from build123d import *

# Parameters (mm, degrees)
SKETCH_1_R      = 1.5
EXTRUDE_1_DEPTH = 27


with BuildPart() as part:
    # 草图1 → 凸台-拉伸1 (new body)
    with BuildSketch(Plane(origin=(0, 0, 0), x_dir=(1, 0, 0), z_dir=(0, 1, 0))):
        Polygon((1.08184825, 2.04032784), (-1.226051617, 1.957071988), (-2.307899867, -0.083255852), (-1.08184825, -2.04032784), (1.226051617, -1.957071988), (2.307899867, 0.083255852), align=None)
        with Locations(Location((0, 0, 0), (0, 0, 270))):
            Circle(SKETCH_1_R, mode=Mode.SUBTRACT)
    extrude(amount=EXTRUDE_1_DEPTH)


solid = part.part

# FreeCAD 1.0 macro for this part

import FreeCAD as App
import Part
import Sketcher
from FreeCAD import Vector
Q = App.Units.Quantity

doc = App.newDocument("Part")
body = doc.addObject("PartDesign::Body", "Body")

# Sketch on XZ plane
sketch1 = doc.addObject("Sketcher::SketchObject", "Sketch")
body.addObject(sketch1)
sketch1.AttachmentSupport = (doc.XZ_Plane, [""])
sketch1.MapMode = "FlatFace"
sketch1.addGeometry(Part.LineSegment(Vector(1.081848, -2.040328, 0), Vector(-1.226052, -1.957072, 0)), False)
sketch1.addGeometry(Part.LineSegment(Vector(-1.226052, -1.957072, 0), Vector(-2.3079, 0.083256, 0)), False)
sketch1.addGeometry(Part.LineSegment(Vector(-2.3079, 0.083256, 0), Vector(-1.081848, 2.040328, 0)), False)
sketch1.addGeometry(Part.LineSegment(Vector(-1.081848, 2.040328, 0), Vector(1.226052, 1.957072, 0)), False)
sketch1.addGeometry(Part.LineSegment(Vector(1.226052, 1.957072, 0), Vector(2.3079, -0.083256, 0)), False)
sketch1.addGeometry(Part.LineSegment(Vector(2.3079, -0.083256, 0), Vector(1.081848, -2.040328, 0)), False)
sketch1.addGeometry(Part.Circle(Vector(0, 0, 0), Vector(0, 0, 1), 1.5), False)
sketch1.addConstraint(Sketcher.Constraint("Coincident", 0, 2, 1, 1))
sketch1.addConstraint(Sketcher.Constraint("Coincident", 1, 2, 2, 1))
sketch1.addConstraint(Sketcher.Constraint("Coincident", 2, 2, 3, 1))
sketch1.addConstraint(Sketcher.Constraint("Coincident", 3, 2, 4, 1))
sketch1.addConstraint(Sketcher.Constraint("Coincident", 4, 2, 5, 1))
sketch1.addConstraint(Sketcher.Constraint("Coincident", 5, 2, 0, 1))
sketch1.addConstraint(Sketcher.Constraint("Coincident", 6, 3, -1, 1))
sketch1.addConstraint(Sketcher.Constraint("Symmetric", 0, 2, 3, 2, -1, 1))
sketch1.addConstraint(Sketcher.Constraint("Symmetric", 1, 2, 4, 2, -1, 1))
sketch1.addConstraint(Sketcher.Constraint("Symmetric", 2, 2, 5, 2, -1, 1))
sketch1.addConstraint(Sketcher.Constraint("Equal", 0, 1))
sketch1.addConstraint(Sketcher.Constraint("Equal", 1, 2))
sketch1.addConstraint(Sketcher.Constraint("Diameter", 6, Q("3 mm")))
sketch1.addConstraint(Sketcher.Constraint("Distance", 0, Q("2.309401 mm")))
sketch1.addConstraint(Sketcher.Constraint("DistanceX", 1, 2, -1, 1, Q("2.3079 mm")))
sketch1.addConstraint(Sketcher.Constraint("DistanceY", 0, 2, 2, 2, Q("3.9974 mm")))
sketch1.addConstraint(Sketcher.Constraint("DistanceX", 2, 2, 3, 2, Q("2.3079 mm")))
pad1 = doc.addObject("PartDesign::Pad", "Pad")
body.addObject(pad1)
pad1.Profile = sketch1
pad1.Length = 27
pad1.Reversed = True

doc.recompute()
